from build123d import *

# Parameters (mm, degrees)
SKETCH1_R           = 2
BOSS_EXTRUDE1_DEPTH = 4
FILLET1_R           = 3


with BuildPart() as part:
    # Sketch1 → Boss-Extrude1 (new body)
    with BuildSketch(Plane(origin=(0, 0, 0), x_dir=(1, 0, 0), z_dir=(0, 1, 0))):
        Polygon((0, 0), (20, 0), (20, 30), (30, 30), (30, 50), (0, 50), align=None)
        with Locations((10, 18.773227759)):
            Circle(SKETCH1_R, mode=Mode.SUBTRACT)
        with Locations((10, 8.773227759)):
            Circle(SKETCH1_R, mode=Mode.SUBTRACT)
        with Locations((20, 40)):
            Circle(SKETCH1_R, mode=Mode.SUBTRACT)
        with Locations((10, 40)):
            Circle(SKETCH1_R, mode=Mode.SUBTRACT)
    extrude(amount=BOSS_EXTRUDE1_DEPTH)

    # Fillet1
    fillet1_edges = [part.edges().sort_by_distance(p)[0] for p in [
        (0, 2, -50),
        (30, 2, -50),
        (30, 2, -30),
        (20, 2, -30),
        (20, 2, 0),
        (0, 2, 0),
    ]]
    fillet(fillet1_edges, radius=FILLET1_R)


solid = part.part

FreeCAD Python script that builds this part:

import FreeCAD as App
import Part
import Sketcher
from FreeCAD import Vector


def edges_at(feature, points):
    """Names of the edges that pass closest to the given points."""
    edges = feature.Shape.Edges
    near = lambda p: min(range(len(edges)), key=lambda i: edges[i].distToShape(Part.Vertex(*p))[0])
    return sorted({f"Edge{near(p) + 1}" for p in points})


def add_polygon(sketch, points):
    """Adds a closed chain of lines whose ends are joined by coincident constraints."""
    first, n = sketch.GeometryCount, len(points)
    for a, b in zip(points, points[1:] + points[:1]):
        sketch.addGeometry(Part.LineSegment(App.Vector(*a, 0), App.Vector(*b, 0)), False)
    for i in range(n):
        sketch.addConstraint(Sketcher.Constraint("Coincident", first + i, 2, first + (i + 1) % n, 1))

doc = App.newDocument("Part")
body = doc.addObject("PartDesign::Body", "Body")

sketch1 = body.newObject("Sketcher::SketchObject", "Sketch")
sketch1.AttachmentSupport = (doc.getObject("XZ_Plane"), [""])
sketch1.MapMode = "FlatFace"
add_polygon(sketch1, [(0, 0), (20, 0), (20, -30), (30, -30), (30, -50), (0, -50)])
sketch1.addGeometry(Part.Circle(Vector(10, -8.8, 0), Vector(0, 0, 1), 2), False)
sketch1.addGeometry(Part.Circle(Vector(10, -18.8, 0), Vector(0, 0, 1), 2), False)
sketch1.addGeometry(Part.Circle(Vector(10, -40, 0), Vector(0, 0, 1), 2), False)
sketch1.addGeometry(Part.Circle(Vector(20, -40, 0), Vector(0, 0, 1), 2), False)
sketch1.addConstraint([
    Sketcher.Constraint("Horizontal", 0),
    Sketcher.Constraint("Vertical", 1),
    Sketcher.Constraint("Horizontal", 2),
    Sketcher.Constraint("Vertical", 3),
    Sketcher.Constraint("Horizontal", 4),
    Sketcher.Constraint("Vertical", 5),
    Sketcher.Constraint("Coincident", 5, 2, -1, 1),
    Sketcher.Constraint("Equal", 6, 7),
    Sketcher.Constraint("Equal", 7, 8),
    Sketcher.Constraint("Equal", 8, 9),
    Sketcher.Constraint("Horizontal", 8, 3, 9, 3),
    Sketcher.Constraint("Vertical", 6, 3, 7, 3),
    Sketcher.Constraint("Vertical", 7, 3, 8, 3),
    Sketcher.Constraint("Vertical", 9, 3, 0, 2),
    Sketcher.Constraint("Equal", 4, 1),
    Sketcher.Constraint("Equal", 0, 3),
    Sketcher.Constraint("Diameter", 6, 4.0),
    Sketcher.Constraint("DistanceX", 0, 1, 0, 2, 20.0),
    Sketcher.Constraint("DistanceX", 2, 1, 2, 2, 10.0),
    Sketcher.Constraint("DistanceX", -1, 1, 6, 3, 10.0),
    Sketcher.Constraint("DistanceY", 8, 3, -1, 1, 40.0),
    Sketcher.Constraint("DistanceY", 7, 3, 6, 3, 10.0),
    Sketcher.Constraint("DistanceY", 6, 3, -1, 1, 8.773228),
])
pad1 = body.newObject("PartDesign::Pad", "Pad")
pad1.Profile = sketch1
pad1.Length = 4
pad1.Reversed = True
doc.recompute()

fillet = body.newObject("PartDesign::Fillet", "Fillet")
fillet.Base = (pad1, edges_at(pad1, [
    (0, 2, -50),
    (30, 2, -50),
    (30, 2, -30),
    (20, 2, -30),
    (20, 2, 0),
    (0, 2, 0),
]))
fillet.Radius = 3

doc.recompute()
